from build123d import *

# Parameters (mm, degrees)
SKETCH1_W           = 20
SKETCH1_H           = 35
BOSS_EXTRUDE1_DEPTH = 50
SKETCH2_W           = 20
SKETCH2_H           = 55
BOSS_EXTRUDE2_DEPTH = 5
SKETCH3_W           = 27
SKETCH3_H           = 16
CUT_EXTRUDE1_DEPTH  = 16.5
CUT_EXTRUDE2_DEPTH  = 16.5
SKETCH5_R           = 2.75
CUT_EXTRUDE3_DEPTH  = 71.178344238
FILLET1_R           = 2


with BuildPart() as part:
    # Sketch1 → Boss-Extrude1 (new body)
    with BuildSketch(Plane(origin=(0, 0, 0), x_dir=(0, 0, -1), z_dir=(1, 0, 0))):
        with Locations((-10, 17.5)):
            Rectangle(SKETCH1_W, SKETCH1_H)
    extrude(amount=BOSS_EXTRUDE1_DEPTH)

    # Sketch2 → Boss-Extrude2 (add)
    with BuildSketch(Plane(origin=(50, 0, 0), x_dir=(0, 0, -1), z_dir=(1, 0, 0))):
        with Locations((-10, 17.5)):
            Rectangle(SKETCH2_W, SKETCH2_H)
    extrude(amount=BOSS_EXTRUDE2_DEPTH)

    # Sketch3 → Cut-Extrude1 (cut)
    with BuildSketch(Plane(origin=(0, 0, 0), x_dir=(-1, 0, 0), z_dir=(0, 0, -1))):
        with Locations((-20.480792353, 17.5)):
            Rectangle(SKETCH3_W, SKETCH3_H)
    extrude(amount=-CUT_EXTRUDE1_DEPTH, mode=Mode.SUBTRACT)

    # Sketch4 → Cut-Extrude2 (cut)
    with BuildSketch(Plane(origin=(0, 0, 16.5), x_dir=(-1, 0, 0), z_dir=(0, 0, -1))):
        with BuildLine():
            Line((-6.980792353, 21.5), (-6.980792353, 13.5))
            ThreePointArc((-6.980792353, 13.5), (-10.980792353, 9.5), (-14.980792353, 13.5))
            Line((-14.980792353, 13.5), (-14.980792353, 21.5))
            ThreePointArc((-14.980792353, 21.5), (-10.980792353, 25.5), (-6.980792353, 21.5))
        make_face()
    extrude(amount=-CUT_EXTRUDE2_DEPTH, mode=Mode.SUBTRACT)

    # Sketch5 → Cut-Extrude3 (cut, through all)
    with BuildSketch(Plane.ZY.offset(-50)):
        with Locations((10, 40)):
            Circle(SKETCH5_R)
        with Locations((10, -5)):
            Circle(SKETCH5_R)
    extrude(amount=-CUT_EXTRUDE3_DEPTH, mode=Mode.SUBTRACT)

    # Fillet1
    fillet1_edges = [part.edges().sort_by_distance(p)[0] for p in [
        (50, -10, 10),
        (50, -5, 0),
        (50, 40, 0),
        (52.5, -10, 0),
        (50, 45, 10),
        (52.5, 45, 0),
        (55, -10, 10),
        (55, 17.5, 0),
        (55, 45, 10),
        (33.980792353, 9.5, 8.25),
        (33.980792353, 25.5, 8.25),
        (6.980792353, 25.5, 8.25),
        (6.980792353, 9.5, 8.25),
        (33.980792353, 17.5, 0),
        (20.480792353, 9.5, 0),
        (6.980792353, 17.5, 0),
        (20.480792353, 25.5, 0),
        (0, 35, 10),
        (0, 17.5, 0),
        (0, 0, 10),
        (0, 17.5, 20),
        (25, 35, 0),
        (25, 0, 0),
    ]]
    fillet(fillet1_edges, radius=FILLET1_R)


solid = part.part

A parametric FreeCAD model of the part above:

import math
import FreeCAD as App
import Part
import Sketcher
from FreeCAD import Vector


def edges_at(feature, points):
    """Names of the edges that pass closest to the given points."""
    edges = feature.Shape.Edges
    near = lambda p: min(range(len(edges)), key=lambda i: edges[i].distToShape(Part.Vertex(*p))[0])
    return sorted({f"Edge{near(p) + 1}" for p in points})


def add_polygon(sketch, points):
    """Adds a closed chain of lines whose ends are joined by coincident constraints."""
    first, n = sketch.GeometryCount, len(points)
    for a, b in zip(points, points[1:] + points[:1]):
        sketch.addGeometry(Part.LineSegment(App.Vector(*a, 0), App.Vector(*b, 0)), False)
    for i in range(n):
        sketch.addConstraint(Sketcher.Constraint("Coincident", first + i, 2, first + (i + 1) % n, 1))

doc = App.newDocument("Part")
body = doc.addObject("PartDesign::Body", "Body")

sketch1 = body.newObject("Sketcher::SketchObject", "Sketch")
sketch1.AttachmentSupport = (doc.getObject("YZ_Plane"), [""])
sketch1.MapMode = "FlatFace"
add_polygon(sketch1, [(35, 20), (0, 20), (0, 0), (35, 0)])
sketch1.addConstraint([
    Sketcher.Constraint("Horizontal", 0),
    Sketcher.Constraint("Vertical", 1),
    Sketcher.Constraint("Horizontal", 2),
    Sketcher.Constraint("Vertical", 3),
    Sketcher.Constraint("Coincident", 1, 2, -1, 1),
    Sketcher.Constraint("DistanceX", 0, 2, 0, 1, 35.0),
    Sketcher.Constraint("DistanceY", 1, 2, 1, 1, 20.0),
])
pad1 = body.newObject("PartDesign::Pad", "Pad")
pad1.Profile = sketch1
pad1.Length = 50

sketch2 = body.newObject("Sketcher::SketchObject", "Sketch001")
sketch2.AttachmentSupport = (doc.getObject("YZ_Plane"), [""])
sketch2.MapMode = "FlatFace"
sketch2.AttachmentOffset = App.Placement(Vector(0, 0, 50), App.Rotation())
add_polygon(sketch2, [(45, 20), (-10, 20), (-10, 0), (45, 0)])
sketch2.addConstraint([
    Sketcher.Constraint("Horizontal", 0),
    Sketcher.Constraint("Vertical", 1),
    Sketcher.Constraint("Horizontal", 2),
    Sketcher.Constraint("Vertical", 3),
    Sketcher.Constraint("PointOnObject", 1, 2, -1),
    Sketcher.Constraint("DistanceX", 0, 2, 0, 1, 55.0),
    Sketcher.Constraint("DistanceY", 1, 2, 1, 1, 20.0),
    Sketcher.Constraint("DistanceX", 0, 2, -1, 1, 10.0),
])
pad2 = body.newObject("PartDesign::Pad", "Pad001")
pad2.Profile = sketch2
pad2.Length = 5

sketch3 = body.newObject("Sketcher::SketchObject", "Sketch002")
sketch3.AttachmentSupport = (doc.getObject("XY_Plane"), [""])
sketch3.MapMode = "FlatFace"
add_polygon(sketch3, [(34, 26), (34, 10), (7, 10), (7, 26)])
sketch3.addConstraint([
    Sketcher.Constraint("Vertical", 0),
    Sketcher.Constraint("Horizontal", 1),
    Sketcher.Constraint("Vertical", 2),
    Sketcher.Constraint("Horizontal", 3),
    Sketcher.Constraint("DistanceX", 1, 2, 1, 1, 27.0),
    Sketcher.Constraint("DistanceY", 0, 2, 0, 1, 16.0),
    Sketcher.Constraint("DistanceY", -1, 1, 0, 2, 9.5),
    Sketcher.Constraint("DistanceX", -1, 1, 0, 2, 33.980792),
])
pocket1 = body.newObject("PartDesign::Pocket", "Pocket")
pocket1.Profile = sketch3
pocket1.Length = 16.5
pocket1.Reversed = True

sketch4 = body.newObject("Sketcher::SketchObject", "Sketch003")
sketch4.AttachmentSupport = (doc.getObject("XY_Plane"), [""])
sketch4.MapMode = "FlatFace"
sketch4.AttachmentOffset = App.Placement(Vector(0, 0, 16.5), App.Rotation())
sketch4.addGeometry([
    Part.LineSegment(Vector(7, 13.5, 0), Vector(7, 21.5, 0)),
    Part.ArcOfCircle(Part.Circle(Vector(11, 21.5, 0), Vector(0, 0, 1), 4), math.radians(0), math.radians(180)),
    Part.LineSegment(Vector(15, 21.5, 0), Vector(15, 13.5, 0)),
    Part.ArcOfCircle(Part.Circle(Vector(11, 13.5, 0), Vector(0, 0, 1), 4), math.radians(180), math.radians(360)),
], False)
sketch4.addConstraint([
    Sketcher.Constraint("Tangent", 0, 2, 1, 2),
    Sketcher.Constraint("Tangent", 1, 1, 2, 1),
    Sketcher.Constraint("Tangent", 2, 2, 3, 2),
    Sketcher.Constraint("Tangent", 3, 1, 0, 1),
    Sketcher.Constraint("Vertical", 0),
    Sketcher.Constraint("Vertical", 2),
    Sketcher.Constraint("Radius", 1, 4.0),
    Sketcher.Constraint("DistanceY", 0, 1, 0, 2, 8.0),
    Sketcher.Constraint("DistanceY", -1, 1, 1, 3, 21.5),
    Sketcher.Constraint("DistanceX", -1, 1, 1, 3, 10.980792),
])
pocket2 = body.newObject("PartDesign::Pocket", "Pocket001")
pocket2.Profile = sketch4
pocket2.Length = 16.5
pocket2.Reversed = True

sketch5 = body.newObject("Sketcher::SketchObject", "Sketch004")
sketch5.AttachmentSupport = (doc.getObject("YZ_Plane"), [""])
sketch5.MapMode = "FlatFace"
sketch5.AttachmentOffset = App.Placement(Vector(0, 0, 50), App.Rotation())
sketch5.addGeometry([
    Part.Circle(Vector(40, 10, 0), Vector(0, 0, 1), 2.8),
    Part.Circle(Vector(-5, 10, 0), Vector(0, 0, 1), 2.8),
], False)
sketch5.addConstraint([
    Sketcher.Constraint("Equal", 0, 1),
    Sketcher.Constraint("Horizontal", 0, 3, 1, 3),
    Sketcher.Constraint("Diameter", 0, 5.5),
    Sketcher.Constraint("DistanceX", -1, 1, 0, 3, 40.0),
    Sketcher.Constraint("DistanceY", -1, 1, 0, 3, 10.0),
    Sketcher.Constraint("DistanceX", 1, 3, -1, 1, 5.0),
])
pocket3 = body.newObject("PartDesign::Pocket", "Pocket002")
pocket3.Profile = sketch5
pocket3.Type = "ThroughAll"
pocket3.Reversed = True
doc.recompute()

fillet = body.newObject("PartDesign::Fillet", "Fillet")
fillet.Base = (pocket3, edges_at(pocket3, [
    (50, -10, 10),
    (50, -5, 0),
    (50, 40, 0),
    (52.5, -10, 0),
    (50, 45, 10),
    (52.5, 45, 0),
    (55, -10, 10),
    (55, 17.5, 0),
    (55, 45, 10),
    (33.981, 9.5, 8.25),
    (33.981, 25.5, 8.25),
    (6.981, 25.5, 8.25),
    (6.981, 9.5, 8.25),
    (33.981, 17.5, 0),
    (20.481, 9.5, 0),
    (6.981, 17.5, 0),
    (20.481, 25.5, 0),
    (0, 35, 10),
    (0, 17.5, 0),
    (0, 0, 10),
    (0, 17.5, 20),
    (25, 35, 0),
    (25, 0, 0),
]))
fillet.Radius = 2

doc.recompute()
